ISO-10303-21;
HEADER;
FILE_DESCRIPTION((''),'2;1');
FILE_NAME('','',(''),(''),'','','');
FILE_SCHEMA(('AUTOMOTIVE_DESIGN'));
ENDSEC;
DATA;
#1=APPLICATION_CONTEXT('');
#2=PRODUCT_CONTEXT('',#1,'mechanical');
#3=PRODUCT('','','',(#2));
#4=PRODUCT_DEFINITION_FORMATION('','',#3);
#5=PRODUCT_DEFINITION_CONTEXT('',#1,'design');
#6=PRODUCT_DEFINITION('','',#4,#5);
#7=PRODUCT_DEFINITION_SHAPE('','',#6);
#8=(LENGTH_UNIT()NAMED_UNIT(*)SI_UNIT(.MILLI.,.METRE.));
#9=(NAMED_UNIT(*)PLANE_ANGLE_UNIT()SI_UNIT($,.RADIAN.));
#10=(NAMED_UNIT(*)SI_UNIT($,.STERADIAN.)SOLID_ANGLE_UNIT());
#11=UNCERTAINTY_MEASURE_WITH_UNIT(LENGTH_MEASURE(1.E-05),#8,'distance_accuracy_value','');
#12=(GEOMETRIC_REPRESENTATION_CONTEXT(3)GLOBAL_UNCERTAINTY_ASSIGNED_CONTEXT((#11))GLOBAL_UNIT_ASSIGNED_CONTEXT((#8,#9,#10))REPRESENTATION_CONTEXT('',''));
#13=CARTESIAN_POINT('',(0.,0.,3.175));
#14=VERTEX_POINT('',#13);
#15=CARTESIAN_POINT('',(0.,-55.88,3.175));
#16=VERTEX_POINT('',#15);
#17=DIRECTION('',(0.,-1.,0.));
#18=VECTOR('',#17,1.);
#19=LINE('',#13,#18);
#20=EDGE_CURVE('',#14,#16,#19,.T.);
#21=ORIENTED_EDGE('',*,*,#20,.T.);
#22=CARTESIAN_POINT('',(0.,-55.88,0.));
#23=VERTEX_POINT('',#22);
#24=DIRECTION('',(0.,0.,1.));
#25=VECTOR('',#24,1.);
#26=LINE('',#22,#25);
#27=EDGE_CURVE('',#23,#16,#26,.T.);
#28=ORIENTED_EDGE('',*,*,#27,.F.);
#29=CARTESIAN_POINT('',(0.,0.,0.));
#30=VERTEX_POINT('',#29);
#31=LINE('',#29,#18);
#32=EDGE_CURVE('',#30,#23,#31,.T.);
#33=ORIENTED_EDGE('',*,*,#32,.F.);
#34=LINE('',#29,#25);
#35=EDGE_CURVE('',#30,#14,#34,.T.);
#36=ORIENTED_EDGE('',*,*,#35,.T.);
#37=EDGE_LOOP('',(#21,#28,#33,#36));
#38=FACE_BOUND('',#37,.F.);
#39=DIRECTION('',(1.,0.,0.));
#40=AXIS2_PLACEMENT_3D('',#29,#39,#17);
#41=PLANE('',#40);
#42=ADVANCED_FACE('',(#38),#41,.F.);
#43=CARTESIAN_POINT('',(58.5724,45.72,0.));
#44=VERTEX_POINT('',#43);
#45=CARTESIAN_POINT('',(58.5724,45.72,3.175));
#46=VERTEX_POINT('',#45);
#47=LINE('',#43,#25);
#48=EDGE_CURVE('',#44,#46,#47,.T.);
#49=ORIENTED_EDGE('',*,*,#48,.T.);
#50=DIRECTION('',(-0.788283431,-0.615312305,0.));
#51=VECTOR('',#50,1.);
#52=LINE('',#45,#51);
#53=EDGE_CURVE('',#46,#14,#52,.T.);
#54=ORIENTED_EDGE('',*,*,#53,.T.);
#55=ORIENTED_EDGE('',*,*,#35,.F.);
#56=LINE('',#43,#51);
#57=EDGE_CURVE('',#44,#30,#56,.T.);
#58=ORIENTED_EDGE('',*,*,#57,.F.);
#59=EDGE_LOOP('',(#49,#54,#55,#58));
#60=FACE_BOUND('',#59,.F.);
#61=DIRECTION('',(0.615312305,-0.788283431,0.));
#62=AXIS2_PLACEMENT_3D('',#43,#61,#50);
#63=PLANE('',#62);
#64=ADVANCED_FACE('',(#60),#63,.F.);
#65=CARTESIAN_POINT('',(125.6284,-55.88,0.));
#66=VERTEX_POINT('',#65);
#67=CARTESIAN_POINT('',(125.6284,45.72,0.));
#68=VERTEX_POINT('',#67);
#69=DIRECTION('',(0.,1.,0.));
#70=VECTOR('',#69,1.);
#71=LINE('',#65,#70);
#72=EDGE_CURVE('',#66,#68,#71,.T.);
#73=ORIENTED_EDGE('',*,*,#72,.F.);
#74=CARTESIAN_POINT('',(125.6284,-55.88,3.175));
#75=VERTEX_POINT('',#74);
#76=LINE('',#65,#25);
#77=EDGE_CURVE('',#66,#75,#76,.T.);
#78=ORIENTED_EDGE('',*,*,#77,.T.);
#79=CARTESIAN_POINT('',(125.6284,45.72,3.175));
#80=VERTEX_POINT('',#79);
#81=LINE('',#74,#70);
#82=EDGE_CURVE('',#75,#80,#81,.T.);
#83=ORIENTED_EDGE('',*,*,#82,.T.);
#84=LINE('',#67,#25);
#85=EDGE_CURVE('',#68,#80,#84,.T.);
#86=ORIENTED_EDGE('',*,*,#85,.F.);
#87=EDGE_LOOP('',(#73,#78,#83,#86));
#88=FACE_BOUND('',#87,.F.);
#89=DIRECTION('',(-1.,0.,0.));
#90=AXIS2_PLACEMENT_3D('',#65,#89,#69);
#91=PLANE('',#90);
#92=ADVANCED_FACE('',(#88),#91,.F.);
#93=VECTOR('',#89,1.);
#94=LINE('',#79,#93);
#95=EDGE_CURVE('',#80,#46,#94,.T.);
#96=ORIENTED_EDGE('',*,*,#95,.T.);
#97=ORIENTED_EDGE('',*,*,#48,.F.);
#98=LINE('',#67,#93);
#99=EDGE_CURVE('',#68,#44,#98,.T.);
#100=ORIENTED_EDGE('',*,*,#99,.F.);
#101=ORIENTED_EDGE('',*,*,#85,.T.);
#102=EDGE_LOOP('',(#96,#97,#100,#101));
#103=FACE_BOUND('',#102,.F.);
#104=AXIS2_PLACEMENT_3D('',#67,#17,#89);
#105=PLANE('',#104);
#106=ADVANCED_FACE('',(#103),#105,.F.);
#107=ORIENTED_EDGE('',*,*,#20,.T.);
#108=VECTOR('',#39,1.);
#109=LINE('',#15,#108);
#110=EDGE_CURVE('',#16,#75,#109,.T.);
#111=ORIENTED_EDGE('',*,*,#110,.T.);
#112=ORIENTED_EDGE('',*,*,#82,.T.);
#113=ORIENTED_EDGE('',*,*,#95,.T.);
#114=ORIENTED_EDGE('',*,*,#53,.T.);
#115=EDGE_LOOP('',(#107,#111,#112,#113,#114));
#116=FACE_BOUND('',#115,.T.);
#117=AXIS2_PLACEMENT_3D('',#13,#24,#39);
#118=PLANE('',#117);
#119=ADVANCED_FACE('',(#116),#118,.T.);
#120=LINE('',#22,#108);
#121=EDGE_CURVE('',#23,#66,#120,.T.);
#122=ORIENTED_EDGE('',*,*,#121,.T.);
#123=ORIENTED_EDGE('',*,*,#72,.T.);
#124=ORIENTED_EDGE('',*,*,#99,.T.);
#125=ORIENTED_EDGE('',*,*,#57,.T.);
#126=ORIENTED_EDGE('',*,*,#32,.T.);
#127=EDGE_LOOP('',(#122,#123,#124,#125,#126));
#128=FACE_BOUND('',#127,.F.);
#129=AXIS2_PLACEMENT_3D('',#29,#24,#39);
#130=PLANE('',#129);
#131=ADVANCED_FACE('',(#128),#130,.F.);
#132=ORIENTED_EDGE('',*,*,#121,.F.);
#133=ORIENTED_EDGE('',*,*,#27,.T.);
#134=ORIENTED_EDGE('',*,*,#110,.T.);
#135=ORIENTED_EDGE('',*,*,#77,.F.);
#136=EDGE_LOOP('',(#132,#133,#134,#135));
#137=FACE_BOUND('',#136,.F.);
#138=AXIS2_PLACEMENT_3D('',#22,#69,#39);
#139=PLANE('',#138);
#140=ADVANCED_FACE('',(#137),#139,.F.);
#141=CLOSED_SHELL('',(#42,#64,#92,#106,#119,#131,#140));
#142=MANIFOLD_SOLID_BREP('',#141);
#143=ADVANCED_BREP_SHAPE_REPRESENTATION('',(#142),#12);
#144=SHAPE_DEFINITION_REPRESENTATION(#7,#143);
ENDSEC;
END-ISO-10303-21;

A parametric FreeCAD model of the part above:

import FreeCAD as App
import Part
import Sketcher
from FreeCAD import Vector
Q = App.Units.Quantity

doc = App.newDocument("Part")
body = doc.addObject("PartDesign::Body", "Body")

# Sketch on XY plane
sketch1 = body.newObject("Sketcher::SketchObject", "Sketch")
sketch1.AttachmentSupport = (doc.getObject("XY_Plane"), [""])
sketch1.MapMode = "FlatFace"
sketch1.addGeometry([
    Part.LineSegment(Vector(59, 46, 0), Vector(0, 0, 0)),  # 0
    Part.LineSegment(Vector(0, 0, 0), Vector(0, -56, 0)),  # 1
    Part.LineSegment(Vector(0, -56, 0), Vector(126, -56, 0)),  # 2
    Part.LineSegment(Vector(126, -56, 0), Vector(126, 46, 0)),  # 3
    Part.LineSegment(Vector(126, 46, 0), Vector(59, 46, 0)),  # 4
], False)
sketch1.addConstraint([
    Sketcher.Constraint("Coincident", 0, 2, 1, 1),
    Sketcher.Constraint("Coincident", 1, 2, 2, 1),
    Sketcher.Constraint("Coincident", 2, 2, 3, 1),
    Sketcher.Constraint("Coincident", 3, 2, 4, 1),
    Sketcher.Constraint("Coincident", 4, 2, 0, 1),
    Sketcher.Constraint("Vertical", 1),
    Sketcher.Constraint("Horizontal", 2),
    Sketcher.Constraint("Vertical", 3),
    Sketcher.Constraint("Horizontal", 4),
    Sketcher.Constraint("Coincident", 0, 2, -1, 1),
    Sketcher.Constraint("DistanceY", 3, 1, 3, 2, Q("4 in")),
    Sketcher.Constraint("DistanceY", 1, 2, 1, 1, Q("2.2 in")),
    Sketcher.Constraint("DistanceX", 4, 2, 4, 1, Q("2.64 in")),
    Sketcher.Constraint("DistanceX", 2, 1, 2, 2, Q("4.946 in")),
])
pad1 = body.newObject("PartDesign::Pad", "Pad")
pad1.Profile = sketch1
pad1.Length = Q("0.125 in")

doc.recompute()
